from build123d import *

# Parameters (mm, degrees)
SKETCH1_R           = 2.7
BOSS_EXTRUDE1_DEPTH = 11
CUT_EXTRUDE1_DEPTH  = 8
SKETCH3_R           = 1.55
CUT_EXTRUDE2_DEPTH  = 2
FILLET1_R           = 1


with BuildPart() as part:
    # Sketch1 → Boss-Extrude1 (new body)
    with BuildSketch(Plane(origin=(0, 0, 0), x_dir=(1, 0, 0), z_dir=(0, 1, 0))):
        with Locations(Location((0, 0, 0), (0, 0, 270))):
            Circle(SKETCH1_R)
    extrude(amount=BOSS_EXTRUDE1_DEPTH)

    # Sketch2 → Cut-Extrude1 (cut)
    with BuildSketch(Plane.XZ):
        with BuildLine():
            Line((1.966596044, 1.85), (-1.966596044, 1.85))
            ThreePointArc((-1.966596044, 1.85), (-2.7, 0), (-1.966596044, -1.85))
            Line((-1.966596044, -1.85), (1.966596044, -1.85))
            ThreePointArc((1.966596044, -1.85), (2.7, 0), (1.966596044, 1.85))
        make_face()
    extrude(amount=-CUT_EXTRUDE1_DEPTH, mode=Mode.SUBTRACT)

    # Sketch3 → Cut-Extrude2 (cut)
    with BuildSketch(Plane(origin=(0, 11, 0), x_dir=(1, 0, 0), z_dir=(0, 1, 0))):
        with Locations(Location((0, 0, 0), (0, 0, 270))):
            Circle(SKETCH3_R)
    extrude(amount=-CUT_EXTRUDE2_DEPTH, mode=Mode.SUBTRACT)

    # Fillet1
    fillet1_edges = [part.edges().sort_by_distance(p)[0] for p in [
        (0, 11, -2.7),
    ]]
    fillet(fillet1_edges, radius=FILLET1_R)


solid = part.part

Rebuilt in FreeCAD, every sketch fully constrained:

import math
import FreeCAD as App
import Part
import Sketcher
Q = App.Units.Quantity


def edges_at(feature, points):
    """Names of the edges that pass closest to the given points."""
    edges = feature.Shape.Edges
    near = lambda p: min(range(len(edges)), key=lambda i: edges[i].distToShape(Part.Vertex(*p))[0])
    return sorted({f"Edge{near(p) + 1}" for p in points})

doc = App.newDocument("Part")
body = doc.addObject("PartDesign::Body", "Body")

# Sketch on XZ plane
sketch1 = body.newObject("Sketcher::SketchObject", "Sketch")
sketch1.AttachmentSupport = (doc.getObject("XZ_Plane"), [""])
sketch1.MapMode = "FlatFace"
sketch1.addGeometry(Part.Circle(App.Vector(0, 0, 0), App.Vector(0, 0, 1), 2.7), False)
sketch1.addConstraint([
    Sketcher.Constraint("Coincident", 0, 3, -1, 1),
    Sketcher.Constraint("Diameter", 0, Q("5.4 mm")),
])
pad1 = body.newObject("PartDesign::Pad", "Pad")
pad1.Profile = sketch1
pad1.Length = 11
pad1.Reversed = True

# Sketch on XZ plane
sketch2 = body.newObject("Sketcher::SketchObject", "Sketch001")
sketch2.AttachmentSupport = (doc.getObject("XZ_Plane"), [""])
sketch2.MapMode = "FlatFace"
sketch2.addGeometry([
    Part.LineSegment(App.Vector(1.966596, 1.85, 0), App.Vector(-1.966596, 1.85, 0)),
    Part.ArcOfCircle(Part.Circle(App.Vector(0, 0, 0), App.Vector(0, 0, 1), 2.7), math.radians(136.749827), math.radians(223.250173)),
    Part.LineSegment(App.Vector(-1.966596, -1.85, 0), App.Vector(1.966596, -1.85, 0)),
    Part.ArcOfCircle(Part.Circle(App.Vector(0, 0, 0), App.Vector(0, 0, 1), 2.7), math.radians(-43.250173), math.radians(43.250173)),
], False)
sketch2.addConstraint([
    Sketcher.Constraint("Coincident", 0, 2, 1, 1),
    Sketcher.Constraint("Coincident", 1, 2, 2, 1),
    Sketcher.Constraint("Coincident", 2, 2, 3, 1),
    Sketcher.Constraint("Coincident", 3, 2, 0, 1),
    Sketcher.Constraint("Horizontal", 0),
    Sketcher.Constraint("Horizontal", 2),
    Sketcher.Constraint("Coincident", 1, 3, -1, 1),
    Sketcher.Constraint("Coincident", 3, 3, -1, 1),
    Sketcher.Constraint("Equal", 1, 3),
    Sketcher.Constraint("Vertical", 0, 2, 1, 2),
    Sketcher.Constraint("Radius", 1, Q("2.7 mm")),
    Sketcher.Constraint("DistanceY", 1, 2, 0, 2, Q("3.7 mm")),
])
pocket1 = body.newObject("PartDesign::Pocket", "Pocket")
pocket1.Profile = sketch2
pocket1.Length = 8

# Sketch on XZ plane
sketch3 = body.newObject("Sketcher::SketchObject", "Sketch002")
sketch3.AttachmentSupport = (doc.getObject("XZ_Plane"), [""])
sketch3.MapMode = "FlatFace"
sketch3.AttachmentOffset = App.Placement(App.Vector(0, 0, -11), App.Rotation())
sketch3.addGeometry(Part.Circle(App.Vector(0, 0, 0), App.Vector(0, 0, 1), 1.55), False)
sketch3.addConstraint([
    Sketcher.Constraint("Coincident", 0, 3, -1, 1),
    Sketcher.Constraint("Diameter", 0, Q("3.1 mm")),
])
pocket2 = body.newObject("PartDesign::Pocket", "Pocket001")
pocket2.Profile = sketch3
pocket2.Length = 2
pocket2.Reversed = True
doc.recompute()

fillet = body.newObject("PartDesign::Fillet", "Fillet")
fillet.Base = (pocket2, edges_at(pocket2, [(0, 11, -2.7)]))
fillet.Radius = 1

doc.recompute()
